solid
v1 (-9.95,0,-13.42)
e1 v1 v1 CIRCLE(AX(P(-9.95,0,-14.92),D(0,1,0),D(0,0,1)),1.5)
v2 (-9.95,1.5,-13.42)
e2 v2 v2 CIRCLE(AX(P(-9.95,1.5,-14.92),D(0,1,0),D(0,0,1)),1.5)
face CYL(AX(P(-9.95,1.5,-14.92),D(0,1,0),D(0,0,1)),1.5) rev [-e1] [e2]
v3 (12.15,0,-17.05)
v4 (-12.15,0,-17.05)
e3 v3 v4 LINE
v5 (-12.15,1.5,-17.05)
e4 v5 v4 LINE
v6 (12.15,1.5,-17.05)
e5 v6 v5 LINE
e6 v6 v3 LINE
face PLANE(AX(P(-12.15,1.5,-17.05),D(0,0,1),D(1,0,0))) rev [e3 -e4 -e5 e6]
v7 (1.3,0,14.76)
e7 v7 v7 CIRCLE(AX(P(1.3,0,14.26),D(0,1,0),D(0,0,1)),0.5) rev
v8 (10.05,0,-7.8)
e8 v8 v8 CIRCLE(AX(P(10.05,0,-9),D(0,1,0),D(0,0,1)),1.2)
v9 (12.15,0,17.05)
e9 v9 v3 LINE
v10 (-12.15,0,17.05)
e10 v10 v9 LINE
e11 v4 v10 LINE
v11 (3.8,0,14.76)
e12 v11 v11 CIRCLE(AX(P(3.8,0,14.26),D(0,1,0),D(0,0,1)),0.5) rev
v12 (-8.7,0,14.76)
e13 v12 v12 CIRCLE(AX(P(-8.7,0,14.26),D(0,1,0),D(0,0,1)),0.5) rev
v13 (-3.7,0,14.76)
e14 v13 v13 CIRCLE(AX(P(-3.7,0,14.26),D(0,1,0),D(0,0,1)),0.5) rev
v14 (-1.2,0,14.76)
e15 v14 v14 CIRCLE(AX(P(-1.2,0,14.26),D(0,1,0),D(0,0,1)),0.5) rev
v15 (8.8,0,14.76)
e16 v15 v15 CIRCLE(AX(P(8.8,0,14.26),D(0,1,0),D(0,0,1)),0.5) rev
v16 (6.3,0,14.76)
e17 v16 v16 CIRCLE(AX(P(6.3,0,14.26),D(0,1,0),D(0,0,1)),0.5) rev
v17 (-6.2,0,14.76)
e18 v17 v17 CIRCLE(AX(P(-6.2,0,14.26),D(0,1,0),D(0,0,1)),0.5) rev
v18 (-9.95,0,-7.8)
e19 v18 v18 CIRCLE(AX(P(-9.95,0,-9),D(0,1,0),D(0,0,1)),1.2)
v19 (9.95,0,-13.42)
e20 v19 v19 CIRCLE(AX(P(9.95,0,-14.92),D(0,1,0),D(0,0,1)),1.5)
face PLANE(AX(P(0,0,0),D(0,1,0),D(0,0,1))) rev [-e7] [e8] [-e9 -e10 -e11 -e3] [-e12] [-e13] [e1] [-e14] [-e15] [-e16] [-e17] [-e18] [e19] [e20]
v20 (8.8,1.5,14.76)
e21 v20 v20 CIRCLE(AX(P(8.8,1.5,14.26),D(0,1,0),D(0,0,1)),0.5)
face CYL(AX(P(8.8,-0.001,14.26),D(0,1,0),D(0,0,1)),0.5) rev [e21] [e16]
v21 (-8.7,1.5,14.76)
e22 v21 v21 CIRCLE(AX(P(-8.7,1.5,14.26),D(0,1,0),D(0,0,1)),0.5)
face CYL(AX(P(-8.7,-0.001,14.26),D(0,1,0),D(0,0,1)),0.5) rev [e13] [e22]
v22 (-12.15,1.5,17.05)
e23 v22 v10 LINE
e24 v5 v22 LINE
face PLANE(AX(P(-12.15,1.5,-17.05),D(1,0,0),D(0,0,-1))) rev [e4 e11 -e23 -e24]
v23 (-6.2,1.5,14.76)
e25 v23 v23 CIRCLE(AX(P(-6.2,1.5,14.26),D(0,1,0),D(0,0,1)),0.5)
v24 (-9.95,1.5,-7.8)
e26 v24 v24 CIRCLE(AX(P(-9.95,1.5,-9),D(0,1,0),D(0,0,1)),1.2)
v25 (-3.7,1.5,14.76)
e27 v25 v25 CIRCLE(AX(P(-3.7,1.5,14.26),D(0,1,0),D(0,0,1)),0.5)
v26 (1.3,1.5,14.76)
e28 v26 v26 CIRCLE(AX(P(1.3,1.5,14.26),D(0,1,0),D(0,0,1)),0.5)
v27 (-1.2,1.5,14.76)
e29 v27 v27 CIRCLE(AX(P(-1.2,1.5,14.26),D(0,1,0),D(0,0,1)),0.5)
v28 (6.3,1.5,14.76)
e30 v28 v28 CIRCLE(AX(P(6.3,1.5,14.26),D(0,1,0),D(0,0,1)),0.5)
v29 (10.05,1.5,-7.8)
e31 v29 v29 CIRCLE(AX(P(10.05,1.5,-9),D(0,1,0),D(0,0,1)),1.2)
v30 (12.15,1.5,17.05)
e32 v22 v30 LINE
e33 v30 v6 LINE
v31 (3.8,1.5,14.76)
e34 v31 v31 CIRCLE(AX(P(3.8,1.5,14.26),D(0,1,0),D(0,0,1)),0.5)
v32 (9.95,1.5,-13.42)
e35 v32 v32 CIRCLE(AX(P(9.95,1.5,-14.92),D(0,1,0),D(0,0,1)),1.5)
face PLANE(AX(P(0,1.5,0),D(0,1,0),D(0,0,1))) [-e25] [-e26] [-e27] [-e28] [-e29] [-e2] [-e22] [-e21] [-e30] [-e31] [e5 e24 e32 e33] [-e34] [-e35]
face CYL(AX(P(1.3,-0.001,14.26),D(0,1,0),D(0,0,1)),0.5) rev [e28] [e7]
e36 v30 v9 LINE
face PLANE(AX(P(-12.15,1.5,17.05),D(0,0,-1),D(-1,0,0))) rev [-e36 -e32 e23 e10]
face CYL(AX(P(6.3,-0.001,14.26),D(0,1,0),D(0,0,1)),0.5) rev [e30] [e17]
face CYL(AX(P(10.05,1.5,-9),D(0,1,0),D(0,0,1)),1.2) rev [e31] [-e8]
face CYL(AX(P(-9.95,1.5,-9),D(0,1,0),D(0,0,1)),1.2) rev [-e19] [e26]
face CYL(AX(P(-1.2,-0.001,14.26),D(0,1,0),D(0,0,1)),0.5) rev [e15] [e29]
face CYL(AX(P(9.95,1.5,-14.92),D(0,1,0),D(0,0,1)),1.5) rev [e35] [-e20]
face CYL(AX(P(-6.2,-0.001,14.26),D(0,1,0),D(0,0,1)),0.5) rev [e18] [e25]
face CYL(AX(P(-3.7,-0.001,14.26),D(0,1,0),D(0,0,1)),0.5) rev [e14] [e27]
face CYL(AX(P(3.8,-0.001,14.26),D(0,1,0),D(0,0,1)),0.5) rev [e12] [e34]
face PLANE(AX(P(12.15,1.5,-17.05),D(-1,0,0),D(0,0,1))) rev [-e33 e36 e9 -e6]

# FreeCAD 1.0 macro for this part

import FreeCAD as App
import Part
import Sketcher


def add_polygon(sketch, points):
    """Adds a closed chain of lines whose ends are joined by coincident constraints."""
    first, n = sketch.GeometryCount, len(points)
    for a, b in zip(points, points[1:] + points[:1]):
        sketch.addGeometry(Part.LineSegment(App.Vector(*a, 0), App.Vector(*b, 0)), False)
    for i in range(n):
        sketch.addConstraint(Sketcher.Constraint("Coincident", first + i, 2, first + (i + 1) % n, 1))

doc = App.newDocument("Part")
body = doc.addObject("PartDesign::Body", "Body")

# Sketch on XZ plane
sketch1 = body.newObject("Sketcher::SketchObject", "Sketch")
sketch1.AttachmentSupport = (doc.getObject("XZ_Plane"), [""])
sketch1.MapMode = "FlatFace"
add_polygon(sketch1, [(-12.15, -17.05), (-12.15, 17.05), (12.15, 17.05), (12.15, -17.05)])  # lines 0-3
sketch1.addConstraint(Sketcher.Constraint("Vertical", 0))
sketch1.addConstraint(Sketcher.Constraint("Horizontal", 1))
sketch1.addConstraint(Sketcher.Constraint("Vertical", 2))
sketch1.addConstraint(Sketcher.Constraint("Horizontal", 3))
sketch1.addConstraint(Sketcher.Constraint("Symmetric", 0, 2, 2, 2, -1, 1))
sketch1.addConstraint(Sketcher.Constraint("DistanceX", 1, 1, 1, 2, 24.3))
sketch1.addConstraint(Sketcher.Constraint("DistanceY", 0, 1, 0, 2, 34.1))
pad1 = body.newObject("PartDesign::Pad", "Pad")
pad1.Profile = sketch1
pad1.Length = 1.5
pad1.Reversed = True

# Sketch on XZ plane
sketch2 = body.newObject("Sketcher::SketchObject", "Sketch001")
sketch2.AttachmentSupport = (doc.getObject("XZ_Plane"), [""])
sketch2.MapMode = "FlatFace"
sketch2.AttachmentOffset = App.Placement(App.Vector(0, 0, -1.5), App.Rotation())
sketch2.addGeometry(Part.Circle(App.Vector(-9.95, -14.92, 0), App.Vector(0, 0, 1), 1.5), False)
sketch2.addGeometry(Part.Circle(App.Vector(9.95, -14.92, 0), App.Vector(0, 0, 1), 1.5), False)
sketch2.addConstraint(Sketcher.Constraint("Equal", 0, 1))
sketch2.addConstraint(Sketcher.Constraint("Symmetric", 0, 3, 1, 3, -2))
sketch2.addConstraint(Sketcher.Constraint("Diameter", 0, 3.0))
sketch2.addConstraint(Sketcher.Constraint("DistanceX", 0, 3, 1, 3, 19.9))
sketch2.addConstraint(Sketcher.Constraint("DistanceY", 0, 3, -1, 1, 14.92))
doc.recompute()
hole = body.newObject("PartDesign::Hole", "Hole")
hole.Profile = sketch2
hole.ThreadType = "None"
hole.Diameter = 3
hole.DepthType = "ThroughAll"
hole.Reversed = True

# Sketch on XZ plane
sketch3 = body.newObject("Sketcher::SketchObject", "Sketch002")
sketch3.AttachmentSupport = (doc.getObject("XZ_Plane"), [""])
sketch3.MapMode = "FlatFace"
sketch3.AttachmentOffset = App.Placement(App.Vector(0, 0, -1.5), App.Rotation())
sketch3.addGeometry(Part.Circle(App.Vector(-9.95, -9, 0), App.Vector(0, 0, 1), 1.2), False)
sketch3.addGeometry(Part.Circle(App.Vector(10.05, -9, 0), App.Vector(0, 0, 1), 1.2), False)
sketch3.addConstraint(Sketcher.Constraint("Equal", 0, 1))
sketch3.addConstraint(Sketcher.Constraint("Horizontal", 0, 3, 1, 3))
sketch3.addConstraint(Sketcher.Constraint("Diameter", 0, 2.4))
sketch3.addConstraint(Sketcher.Constraint("DistanceY", 0, 3, -1, 1, 9.0))
sketch3.addConstraint(Sketcher.Constraint("DistanceX", 0, 3, 1, 3, 20.0))
sketch3.addConstraint(Sketcher.Constraint("DistanceX", 0, 3, -1, 1, 9.95))
doc.recompute()
hole2 = body.newObject("PartDesign::Hole", "Hole001")
hole2.Profile = sketch3
hole2.ThreadType = "None"
hole2.Diameter = 2.4
hole2.DepthType = "ThroughAll"
hole2.Reversed = True

# Sketch on XZ plane
sketch4 = body.newObject("Sketcher::SketchObject", "Sketch003")
sketch4.AttachmentSupport = (doc.getObject("XZ_Plane"), [""])
sketch4.MapMode = "FlatFace"
sketch4.AttachmentOffset = App.Placement(App.Vector(0, 0, -1.5), App.Rotation())
sketch4.addGeometry(Part.Circle(App.Vector(-8.7, 14.26, 0), App.Vector(0, 0, 1), 0.5), False)
sketch4.addConstraint(Sketcher.Constraint("Diameter", 0, 1.0))
sketch4.addConstraint(Sketcher.Constraint("DistanceX", 0, 3, -1, 1, 8.7))
sketch4.addConstraint(Sketcher.Constraint("DistanceY", -1, 1, 0, 3, 14.26))
pocket1 = body.newObject("PartDesign::Pocket", "Pocket")
pocket1.Profile = sketch4
pocket1.Type = "UpToFirst"
pocket1.Reversed = True

# Sketch on XZ plane
sketch5 = body.newObject("Sketcher::SketchObject", "Sketch004")
sketch5.AttachmentSupport = (doc.getObject("XZ_Plane"), [""])
sketch5.MapMode = "FlatFace"
sketch5.AttachmentOffset = App.Placement(App.Vector(0, 0, -1.5), App.Rotation())
sketch5.addGeometry(Part.Circle(App.Vector(-6.2, 14.26, 0), App.Vector(0, 0, 1), 0.5), False)
sketch5.addConstraint(Sketcher.Constraint("Diameter", 0, 1.0))
sketch5.addConstraint(Sketcher.Constraint("DistanceX", 0, 3, -1, 1, 6.2))
sketch5.addConstraint(Sketcher.Constraint("DistanceY", -1, 1, 0, 3, 14.26))
pocket2 = body.newObject("PartDesign::Pocket", "Pocket001")
pocket2.Profile = sketch5
pocket2.Type = "UpToFirst"
pocket2.Reversed = True

# Sketch on XZ plane
sketch6 = body.newObject("Sketcher::SketchObject", "Sketch005")
sketch6.AttachmentSupport = (doc.getObject("XZ_Plane"), [""])
sketch6.MapMode = "FlatFace"
sketch6.AttachmentOffset = App.Placement(App.Vector(0, 0, -1.5), App.Rotation())
sketch6.addGeometry(Part.Circle(App.Vector(-3.7, 14.26, 0), App.Vector(0, 0, 1), 0.5), False)
sketch6.addConstraint(Sketcher.Constraint("Diameter", 0, 1.0))
sketch6.addConstraint(Sketcher.Constraint("DistanceX", 0, 3, -1, 1, 3.7))
sketch6.addConstraint(Sketcher.Constraint("DistanceY", -1, 1, 0, 3, 14.26))
pocket3 = body.newObject("PartDesign::Pocket", "Pocket002")
pocket3.Profile = sketch6
pocket3.Type = "UpToFirst"
pocket3.Reversed = True

# Sketch on XZ plane
sketch7 = body.newObject("Sketcher::SketchObject", "Sketch006")
sketch7.AttachmentSupport = (doc.getObject("XZ_Plane"), [""])
sketch7.MapMode = "FlatFace"
sketch7.AttachmentOffset = App.Placement(App.Vector(0, 0, -1.5), App.Rotation())
sketch7.addGeometry(Part.Circle(App.Vector(-1.2, 14.26, 0), App.Vector(0, 0, 1), 0.5), False)
sketch7.addConstraint(Sketcher.Constraint("Diameter", 0, 1.0))
sketch7.addConstraint(Sketcher.Constraint("DistanceX", 0, 3, -1, 1, 1.2))
sketch7.addConstraint(Sketcher.Constraint("DistanceY", -1, 1, 0, 3, 14.26))
pocket4 = body.newObject("PartDesign::Pocket", "Pocket003")
pocket4.Profile = sketch7
pocket4.Type = "UpToFirst"
pocket4.Reversed = True

# Sketch on XZ plane
sketch8 = body.newObject("Sketcher::SketchObject", "Sketch007")
sketch8.AttachmentSupport = (doc.getObject("XZ_Plane"), [""])
sketch8.MapMode = "FlatFace"
sketch8.AttachmentOffset = App.Placement(App.Vector(0, 0, -1.5), App.Rotation())
sketch8.addGeometry(Part.Circle(App.Vector(1.3, 14.26, 0), App.Vector(0, 0, 1), 0.5), False)
sketch8.addConstraint(Sketcher.Constraint("Diameter", 0, 1.0))
sketch8.addConstraint(Sketcher.Constraint("DistanceX", -1, 1, 0, 3, 1.3))
sketch8.addConstraint(Sketcher.Constraint("DistanceY", -1, 1, 0, 3, 14.26))
pocket5 = body.newObject("PartDesign::Pocket", "Pocket004")
pocket5.Profile = sketch8
pocket5.Type = "UpToFirst"
pocket5.Reversed = True

# Sketch on XZ plane
sketch9 = body.newObject("Sketcher::SketchObject", "Sketch008")
sketch9.AttachmentSupport = (doc.getObject("XZ_Plane"), [""])
sketch9.MapMode = "FlatFace"
sketch9.AttachmentOffset = App.Placement(App.Vector(0, 0, -1.5), App.Rotation())
sketch9.addGeometry(Part.Circle(App.Vector(3.8, 14.26, 0), App.Vector(0, 0, 1), 0.5), False)
sketch9.addConstraint(Sketcher.Constraint("Diameter", 0, 1.0))
sketch9.addConstraint(Sketcher.Constraint("DistanceX", -1, 1, 0, 3, 3.8))
sketch9.addConstraint(Sketcher.Constraint("DistanceY", -1, 1, 0, 3, 14.26))
pocket6 = body.newObject("PartDesign::Pocket", "Pocket005")
pocket6.Profile = sketch9
pocket6.Type = "UpToFirst"
pocket6.Reversed = True

# Sketch on XZ plane
sketch10 = body.newObject("Sketcher::SketchObject", "Sketch009")
sketch10.AttachmentSupport = (doc.getObject("XZ_Plane"), [""])
sketch10.MapMode = "FlatFace"
sketch10.AttachmentOffset = App.Placement(App.Vector(0, 0, -1.5), App.Rotation())
sketch10.addGeometry(Part.Circle(App.Vector(6.3, 14.26, 0), App.Vector(0, 0, 1), 0.5), False)
sketch10.addConstraint(Sketcher.Constraint("Diameter", 0, 1.0))
sketch10.addConstraint(Sketcher.Constraint("DistanceX", -1, 1, 0, 3, 6.3))
sketch10.addConstraint(Sketcher.Constraint("DistanceY", -1, 1, 0, 3, 14.26))
pocket7 = body.newObject("PartDesign::Pocket", "Pocket006")
pocket7.Profile = sketch10
pocket7.Type = "UpToFirst"
pocket7.Reversed = True

# Sketch on XZ plane
sketch11 = body.newObject("Sketcher::SketchObject", "Sketch010")
sketch11.AttachmentSupport = (doc.getObject("XZ_Plane"), [""])
sketch11.MapMode = "FlatFace"
sketch11.AttachmentOffset = App.Placement(App.Vector(0, 0, -1.5), App.Rotation())
sketch11.addGeometry(Part.Circle(App.Vector(8.8, 14.26, 0), App.Vector(0, 0, 1), 0.5), False)
sketch11.addConstraint(Sketcher.Constraint("Diameter", 0, 1.0))
sketch11.addConstraint(Sketcher.Constraint("DistanceX", -1, 1, 0, 3, 8.8))
sketch11.addConstraint(Sketcher.Constraint("DistanceY", -1, 1, 0, 3, 14.26))
pocket8 = body.newObject("PartDesign::Pocket", "Pocket007")
pocket8.Profile = sketch11
pocket8.Type = "UpToFirst"
pocket8.Reversed = True

doc.recompute()
